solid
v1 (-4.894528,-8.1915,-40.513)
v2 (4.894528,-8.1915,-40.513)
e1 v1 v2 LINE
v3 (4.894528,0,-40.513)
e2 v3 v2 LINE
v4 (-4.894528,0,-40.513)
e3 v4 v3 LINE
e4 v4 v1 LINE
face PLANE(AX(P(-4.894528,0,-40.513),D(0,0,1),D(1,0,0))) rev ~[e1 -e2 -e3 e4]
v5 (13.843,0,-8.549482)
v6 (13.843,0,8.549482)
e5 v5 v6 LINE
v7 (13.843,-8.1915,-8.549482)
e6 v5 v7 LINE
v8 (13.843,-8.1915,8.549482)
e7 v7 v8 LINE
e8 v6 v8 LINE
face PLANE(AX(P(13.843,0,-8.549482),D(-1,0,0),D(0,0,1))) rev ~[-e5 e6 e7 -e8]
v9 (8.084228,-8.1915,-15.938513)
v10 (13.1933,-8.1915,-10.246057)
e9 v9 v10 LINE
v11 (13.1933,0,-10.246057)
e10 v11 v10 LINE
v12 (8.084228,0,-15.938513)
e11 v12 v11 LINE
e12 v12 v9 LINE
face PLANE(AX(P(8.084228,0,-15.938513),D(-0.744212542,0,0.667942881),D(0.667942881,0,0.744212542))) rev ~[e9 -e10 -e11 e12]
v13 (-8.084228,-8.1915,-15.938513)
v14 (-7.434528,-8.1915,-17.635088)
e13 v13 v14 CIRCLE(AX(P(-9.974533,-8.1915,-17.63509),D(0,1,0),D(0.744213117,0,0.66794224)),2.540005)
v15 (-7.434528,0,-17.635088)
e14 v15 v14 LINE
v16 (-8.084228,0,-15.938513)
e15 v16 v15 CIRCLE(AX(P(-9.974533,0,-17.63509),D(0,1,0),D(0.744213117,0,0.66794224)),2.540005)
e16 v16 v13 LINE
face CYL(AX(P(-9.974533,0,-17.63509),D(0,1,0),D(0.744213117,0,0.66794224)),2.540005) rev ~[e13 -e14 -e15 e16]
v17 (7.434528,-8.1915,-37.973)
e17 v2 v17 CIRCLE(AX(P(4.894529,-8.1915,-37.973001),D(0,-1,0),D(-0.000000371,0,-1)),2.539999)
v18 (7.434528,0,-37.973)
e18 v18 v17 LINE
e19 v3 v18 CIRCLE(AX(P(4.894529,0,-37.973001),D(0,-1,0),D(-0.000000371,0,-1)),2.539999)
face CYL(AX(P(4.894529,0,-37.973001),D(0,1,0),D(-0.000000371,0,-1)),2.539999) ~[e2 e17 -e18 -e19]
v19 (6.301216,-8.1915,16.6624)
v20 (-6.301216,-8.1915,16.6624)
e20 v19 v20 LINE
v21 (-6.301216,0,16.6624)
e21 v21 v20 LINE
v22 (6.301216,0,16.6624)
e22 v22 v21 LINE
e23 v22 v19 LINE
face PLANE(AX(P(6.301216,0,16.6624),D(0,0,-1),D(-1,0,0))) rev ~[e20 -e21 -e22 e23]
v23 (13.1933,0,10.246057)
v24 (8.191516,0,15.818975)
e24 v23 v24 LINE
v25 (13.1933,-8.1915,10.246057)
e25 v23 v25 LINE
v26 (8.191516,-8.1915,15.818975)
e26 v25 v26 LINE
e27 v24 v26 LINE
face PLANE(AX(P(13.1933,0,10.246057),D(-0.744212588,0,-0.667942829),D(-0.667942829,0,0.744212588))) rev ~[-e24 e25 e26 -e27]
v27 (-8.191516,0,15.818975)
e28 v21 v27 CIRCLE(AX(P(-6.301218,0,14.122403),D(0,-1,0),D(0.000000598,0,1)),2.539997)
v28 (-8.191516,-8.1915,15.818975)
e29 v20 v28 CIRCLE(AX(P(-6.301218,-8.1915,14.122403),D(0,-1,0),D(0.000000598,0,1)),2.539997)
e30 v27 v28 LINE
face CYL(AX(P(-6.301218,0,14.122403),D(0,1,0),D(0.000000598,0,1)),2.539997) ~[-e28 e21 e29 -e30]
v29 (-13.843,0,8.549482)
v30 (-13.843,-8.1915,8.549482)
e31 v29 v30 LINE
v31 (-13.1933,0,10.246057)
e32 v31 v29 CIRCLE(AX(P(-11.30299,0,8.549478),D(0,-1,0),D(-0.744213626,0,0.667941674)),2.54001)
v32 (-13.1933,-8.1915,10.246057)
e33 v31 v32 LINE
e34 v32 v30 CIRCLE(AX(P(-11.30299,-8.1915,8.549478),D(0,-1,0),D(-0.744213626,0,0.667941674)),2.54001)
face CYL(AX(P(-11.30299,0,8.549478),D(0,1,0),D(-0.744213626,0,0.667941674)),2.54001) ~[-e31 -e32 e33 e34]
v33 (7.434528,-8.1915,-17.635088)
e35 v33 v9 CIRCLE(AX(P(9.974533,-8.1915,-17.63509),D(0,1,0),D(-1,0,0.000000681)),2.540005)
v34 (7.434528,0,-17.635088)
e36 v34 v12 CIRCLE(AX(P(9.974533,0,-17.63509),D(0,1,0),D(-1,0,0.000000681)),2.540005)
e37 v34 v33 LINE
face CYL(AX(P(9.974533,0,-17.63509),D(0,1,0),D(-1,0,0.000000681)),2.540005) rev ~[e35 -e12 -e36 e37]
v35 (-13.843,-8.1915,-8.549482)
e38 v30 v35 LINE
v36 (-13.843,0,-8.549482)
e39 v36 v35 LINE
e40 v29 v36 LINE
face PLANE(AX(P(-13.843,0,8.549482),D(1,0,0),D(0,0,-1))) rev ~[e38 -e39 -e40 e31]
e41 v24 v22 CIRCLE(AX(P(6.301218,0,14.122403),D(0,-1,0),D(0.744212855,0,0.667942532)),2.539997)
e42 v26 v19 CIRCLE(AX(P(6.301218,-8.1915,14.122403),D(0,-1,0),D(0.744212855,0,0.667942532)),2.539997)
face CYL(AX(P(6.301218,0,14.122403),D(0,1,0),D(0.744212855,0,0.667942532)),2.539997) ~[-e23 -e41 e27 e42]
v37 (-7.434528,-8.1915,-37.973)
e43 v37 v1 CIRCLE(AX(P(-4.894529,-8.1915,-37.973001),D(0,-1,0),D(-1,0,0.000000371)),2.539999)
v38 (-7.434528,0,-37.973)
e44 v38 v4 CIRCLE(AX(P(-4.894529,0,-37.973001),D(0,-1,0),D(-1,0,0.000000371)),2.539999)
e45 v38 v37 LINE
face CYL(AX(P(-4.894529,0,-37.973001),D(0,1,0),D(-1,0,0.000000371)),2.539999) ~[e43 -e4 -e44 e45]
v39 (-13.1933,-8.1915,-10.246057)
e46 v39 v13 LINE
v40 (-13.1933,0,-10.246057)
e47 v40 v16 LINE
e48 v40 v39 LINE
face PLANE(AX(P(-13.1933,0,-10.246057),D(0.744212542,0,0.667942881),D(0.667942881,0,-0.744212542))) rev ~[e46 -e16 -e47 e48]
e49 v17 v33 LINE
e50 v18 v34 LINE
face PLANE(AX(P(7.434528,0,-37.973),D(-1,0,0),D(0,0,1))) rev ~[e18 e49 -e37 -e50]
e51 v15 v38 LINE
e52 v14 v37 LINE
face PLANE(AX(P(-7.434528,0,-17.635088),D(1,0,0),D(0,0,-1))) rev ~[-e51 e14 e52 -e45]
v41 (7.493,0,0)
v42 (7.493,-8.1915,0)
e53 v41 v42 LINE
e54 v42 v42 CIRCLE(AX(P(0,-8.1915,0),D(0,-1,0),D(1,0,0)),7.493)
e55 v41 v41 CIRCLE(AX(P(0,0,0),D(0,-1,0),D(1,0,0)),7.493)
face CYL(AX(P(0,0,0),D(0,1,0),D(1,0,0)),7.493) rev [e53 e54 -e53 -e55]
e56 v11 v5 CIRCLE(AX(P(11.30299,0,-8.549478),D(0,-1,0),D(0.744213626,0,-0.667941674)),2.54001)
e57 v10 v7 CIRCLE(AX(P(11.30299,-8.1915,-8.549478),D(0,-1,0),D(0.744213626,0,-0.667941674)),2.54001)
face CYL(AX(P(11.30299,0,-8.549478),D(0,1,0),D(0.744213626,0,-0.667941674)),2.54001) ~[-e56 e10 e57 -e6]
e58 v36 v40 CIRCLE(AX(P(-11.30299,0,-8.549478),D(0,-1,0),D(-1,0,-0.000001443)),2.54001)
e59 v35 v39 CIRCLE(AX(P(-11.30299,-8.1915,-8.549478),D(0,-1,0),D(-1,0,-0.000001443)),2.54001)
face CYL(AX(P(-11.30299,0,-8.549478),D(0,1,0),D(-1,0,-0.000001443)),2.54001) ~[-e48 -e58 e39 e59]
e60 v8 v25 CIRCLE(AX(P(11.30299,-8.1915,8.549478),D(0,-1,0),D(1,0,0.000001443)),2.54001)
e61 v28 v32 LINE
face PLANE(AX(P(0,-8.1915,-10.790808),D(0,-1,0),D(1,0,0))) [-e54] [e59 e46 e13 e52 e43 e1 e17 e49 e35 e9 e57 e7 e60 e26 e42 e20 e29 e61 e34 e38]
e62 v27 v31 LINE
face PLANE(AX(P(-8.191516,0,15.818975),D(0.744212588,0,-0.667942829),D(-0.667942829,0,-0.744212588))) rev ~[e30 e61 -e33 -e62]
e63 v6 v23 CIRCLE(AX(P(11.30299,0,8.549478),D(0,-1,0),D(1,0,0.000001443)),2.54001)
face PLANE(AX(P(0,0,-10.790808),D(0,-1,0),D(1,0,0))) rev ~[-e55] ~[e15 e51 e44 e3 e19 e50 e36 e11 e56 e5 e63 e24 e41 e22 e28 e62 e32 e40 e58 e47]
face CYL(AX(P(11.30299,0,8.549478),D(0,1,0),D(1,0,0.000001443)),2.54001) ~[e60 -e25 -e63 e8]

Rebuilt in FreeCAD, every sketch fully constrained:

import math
import FreeCAD as App
import Part
import Sketcher
Q = App.Units.Quantity

doc = App.newDocument("Part")
params = doc.addObject("Spreadsheet::Sheet", "Params")
for row, (alias, value) in enumerate([
    ("sketch1_radius", "0.0999999 in"),
    ("sketch1_diameter", "0.59 in"),
    ("pad1_length", "0.3225 in"),
], start=1):
    params.set(f"A{row}", alias)
    params.set(f"B{row}", "=" + value)
    params.setAlias(f"B{row}", alias)

body = doc.addObject("PartDesign::Body", "Body")

# Sketch on XZ plane
sketch1 = body.newObject("Sketcher::SketchObject", "Sketch")
sketch1.AttachmentSupport = (doc.getObject("XZ_Plane"), [""])
sketch1.MapMode = "FlatFace"
sketch1.addGeometry([
    Part.LineSegment(App.Vector(6.301216, 16.6624, 0), App.Vector(-6.301216, 16.6624, 0)),  # 0
    Part.ArcOfCircle(Part.Circle(App.Vector(-6.301218, 14.122403, 0), App.Vector(0, 0, 1), 2.539997), math.radians(89.999966), math.radians(138.091534)),  # 1
    Part.LineSegment(App.Vector(-8.191516, 15.818975, 0), App.Vector(-13.1933, 10.246057, 0)),  # 2
    Part.ArcOfCircle(Part.Circle(App.Vector(-11.30299, 8.549478, 0), App.Vector(0, 0, 1), 2.54001), math.radians(138.0916), math.radians(179.999917)),  # 3
    Part.LineSegment(App.Vector(-13.843, 8.549482, 0), App.Vector(-13.843, -8.549482, 0)),  # 4
    Part.ArcOfCircle(Part.Circle(App.Vector(-11.30299, -8.549478, 0), App.Vector(0, 0, 1), 2.54001), math.radians(-179.999917), math.radians(-138.0916)),  # 5
    Part.LineSegment(App.Vector(-13.1933, -10.246057, 0), App.Vector(-8.084228, -15.938513, 0)),  # 6
    Part.ArcOfCircle(Part.Circle(App.Vector(-9.974533, -17.63509, 0), App.Vector(0, 0, 1), 2.540005), math.radians(0.000039), math.radians(41.908444)),  # 7
    Part.LineSegment(App.Vector(-7.434528, -17.635088, 0), App.Vector(-7.434528, -37.973, 0)),  # 8
    Part.ArcOfCircle(Part.Circle(App.Vector(-4.894529, -37.973001, 0), App.Vector(0, 0, 1), 2.539999), math.radians(179.999979), math.radians(270.000021)),  # 9
    Part.LineSegment(App.Vector(-4.894528, -40.513, 0), App.Vector(4.894528, -40.513, 0)),  # 10
    Part.ArcOfCircle(Part.Circle(App.Vector(4.894529, -37.973001, 0), App.Vector(0, 0, 1), 2.539999), math.radians(-90.000021), math.radians(0.000021)),  # 11
    Part.LineSegment(App.Vector(7.434528, -37.973, 0), App.Vector(7.434528, -17.635088, 0)),  # 12
    Part.ArcOfCircle(Part.Circle(App.Vector(9.974533, -17.63509, 0), App.Vector(0, 0, 1), 2.540005), math.radians(138.091556), math.radians(179.999961)),  # 13
    Part.LineSegment(App.Vector(8.084228, -15.938513, 0), App.Vector(13.1933, -10.246057, 0)),  # 14
    Part.ArcOfCircle(Part.Circle(App.Vector(11.30299, -8.549478, 0), App.Vector(0, 0, 1), 2.54001), math.radians(-41.9084), math.radians(-0.000083)),  # 15
    Part.LineSegment(App.Vector(13.843, -8.549482, 0), App.Vector(13.843, 8.549482, 0)),  # 16
    Part.ArcOfCircle(Part.Circle(App.Vector(11.30299, 8.549478, 0), App.Vector(0, 0, 1), 2.54001), math.radians(0.000083), math.radians(41.9084)),  # 17
    Part.LineSegment(App.Vector(13.1933, 10.246057, 0), App.Vector(8.191516, 15.818975, 0)),  # 18
    Part.ArcOfCircle(Part.Circle(App.Vector(6.301218, 14.122403, 0), App.Vector(0, 0, 1), 2.539997), math.radians(41.908466), math.radians(90.000034)),  # 19
    Part.Circle(App.Vector(0, 0, 0), App.Vector(0, 0, 1), 7.493),  # 20
], False)
sketch1.addConstraint([
    Sketcher.Constraint("Tangent", 0, 2, 1, 1),
    Sketcher.Constraint("Tangent", 1, 2, 2, 1),
    Sketcher.Constraint("Tangent", 2, 2, 3, 1),
    Sketcher.Constraint("Tangent", 3, 2, 4, 1),
    Sketcher.Constraint("Tangent", 4, 2, 5, 1),
    Sketcher.Constraint("Tangent", 5, 2, 6, 1),
    Sketcher.Constraint("Tangent", 6, 2, 7, 2),
    Sketcher.Constraint("Tangent", 7, 1, 8, 1),
    Sketcher.Constraint("Tangent", 8, 2, 9, 1),
    Sketcher.Constraint("Tangent", 9, 2, 10, 1),
    Sketcher.Constraint("Tangent", 10, 2, 11, 1),
    Sketcher.Constraint("Tangent", 11, 2, 12, 1),
    Sketcher.Constraint("Tangent", 12, 2, 13, 2),
    Sketcher.Constraint("Tangent", 13, 1, 14, 1),
    Sketcher.Constraint("Tangent", 14, 2, 15, 1),
    Sketcher.Constraint("Tangent", 15, 2, 16, 1),
    Sketcher.Constraint("Tangent", 16, 2, 17, 1),
    Sketcher.Constraint("Tangent", 17, 2, 18, 1),
    Sketcher.Constraint("Tangent", 18, 2, 19, 1),
    Sketcher.Constraint("Tangent", 19, 2, 0, 1),
    Sketcher.Constraint("Horizontal", 0),
    Sketcher.Constraint("Vertical", 4),
    Sketcher.Constraint("Vertical", 8),
    Sketcher.Constraint("Horizontal", 10),
    Sketcher.Constraint("Vertical", 12),
    Sketcher.Constraint("Vertical", 16),
    Sketcher.Constraint("Coincident", 20, 3, -1, 1),
    Sketcher.Constraint("Equal", 3, 5),
    Sketcher.Constraint("Equal", 1, 9),
    Sketcher.Constraint("Equal", 9, 11),
    Sketcher.Constraint("Equal", 7, 13),
    Sketcher.Constraint("Equal", 5, 15),
    Sketcher.Constraint("Equal", 15, 17),
    Sketcher.Constraint("Equal", 11, 19),
    Sketcher.Constraint("Symmetric", 3, 3, 15, 3, -1, 1),
    Sketcher.Constraint("Symmetric", 5, 2, 17, 2, -1, 1),
    Sketcher.Constraint("Symmetric", 7, 3, 13, 3, -2),
    Sketcher.Constraint("Symmetric", 2, 2, 17, 2, -2),
    Sketcher.Constraint("Radius", 1, Q("0.0999999 in")),
    Sketcher.Constraint("Diameter", 20, Q("0.59 in")),
    Sketcher.Constraint("DistanceX", 7, 3, 9, 3, Q("0.2000002 in")),
    Sketcher.Constraint("DistanceY", -1, 1, 1, 3, Q("0.5560001 in")),
    Sketcher.Constraint("DistanceY", 9, 3, -1, 1, Q("1.495 in")),
    Sketcher.Constraint("DistanceX", 3, 2, -1, 1, Q("0.545 in")),
    Sketcher.Constraint("Radius", 3, 2.54001),
    Sketcher.Constraint("DistanceY", 8, 2, 8, 1, 20.337912),
    Sketcher.Constraint("DistanceX", 2, 2, -1, 1, 13.1933),
    Sketcher.Constraint("Distance", 2, 7.488341),
])
sketch1.setExpression("Constraints[38]", "Params.sketch1_radius")
sketch1.setExpression("Constraints[39]", "Params.sketch1_diameter")
pad1 = body.newObject("PartDesign::Pad", "Pad")
pad1.Profile = sketch1
pad1.setExpression("Length", "Params.pad1_length")

doc.recompute()
